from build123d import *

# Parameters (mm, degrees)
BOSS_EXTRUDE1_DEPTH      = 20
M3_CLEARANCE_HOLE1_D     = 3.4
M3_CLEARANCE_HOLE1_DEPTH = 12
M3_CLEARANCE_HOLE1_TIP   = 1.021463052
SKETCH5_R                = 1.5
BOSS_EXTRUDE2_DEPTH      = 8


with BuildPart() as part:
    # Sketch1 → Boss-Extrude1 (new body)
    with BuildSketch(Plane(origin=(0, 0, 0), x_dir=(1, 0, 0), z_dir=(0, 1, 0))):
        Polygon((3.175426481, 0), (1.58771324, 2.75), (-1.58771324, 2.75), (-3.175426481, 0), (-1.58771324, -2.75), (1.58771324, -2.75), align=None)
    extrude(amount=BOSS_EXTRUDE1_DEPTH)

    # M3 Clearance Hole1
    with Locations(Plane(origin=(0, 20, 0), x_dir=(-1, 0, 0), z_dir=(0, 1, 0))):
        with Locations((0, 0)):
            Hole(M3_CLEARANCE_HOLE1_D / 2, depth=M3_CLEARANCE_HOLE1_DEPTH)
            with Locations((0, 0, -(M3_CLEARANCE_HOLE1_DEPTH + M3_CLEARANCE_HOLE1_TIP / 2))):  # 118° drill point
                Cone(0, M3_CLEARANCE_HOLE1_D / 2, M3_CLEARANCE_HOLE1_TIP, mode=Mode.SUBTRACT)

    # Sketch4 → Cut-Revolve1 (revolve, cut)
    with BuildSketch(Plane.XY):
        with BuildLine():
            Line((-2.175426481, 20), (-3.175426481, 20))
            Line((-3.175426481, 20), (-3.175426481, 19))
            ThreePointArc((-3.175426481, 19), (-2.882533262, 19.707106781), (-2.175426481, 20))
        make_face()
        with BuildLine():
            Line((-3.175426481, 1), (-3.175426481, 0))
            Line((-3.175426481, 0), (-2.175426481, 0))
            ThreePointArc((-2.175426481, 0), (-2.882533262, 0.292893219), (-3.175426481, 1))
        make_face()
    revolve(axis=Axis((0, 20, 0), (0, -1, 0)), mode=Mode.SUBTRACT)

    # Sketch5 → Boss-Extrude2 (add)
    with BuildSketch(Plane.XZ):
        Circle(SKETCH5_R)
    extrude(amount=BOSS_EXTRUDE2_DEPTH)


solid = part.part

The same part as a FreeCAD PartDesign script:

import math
import FreeCAD as App
import Part
import Sketcher
Q = App.Units.Quantity

doc = App.newDocument("Part")
body = doc.addObject("PartDesign::Body", "Body")

# Sketch on XZ plane
sketch1 = body.newObject("Sketcher::SketchObject", "Sketch")
sketch1.AttachmentSupport = (doc.getObject("XZ_Plane"), [""])
sketch1.MapMode = "FlatFace"
sketch1.addGeometry([
    Part.LineSegment(App.Vector(3.175426, 0, 0), App.Vector(1.587713, -2.75, 0)),  # 0
    Part.LineSegment(App.Vector(1.587713, -2.75, 0), App.Vector(-1.587713, -2.75, 0)),  # 1
    Part.LineSegment(App.Vector(-1.587713, -2.75, 0), App.Vector(-3.175426, 0, 0)),  # 2
    Part.LineSegment(App.Vector(-3.175426, 0, 0), App.Vector(-1.587713, 2.75, 0)),  # 3
    Part.LineSegment(App.Vector(-1.587713, 2.75, 0), App.Vector(1.587713, 2.75, 0)),  # 4
    Part.LineSegment(App.Vector(1.587713, 2.75, 0), App.Vector(3.175426, 0, 0)),  # 5
], False)
sketch1.addConstraint([
    Sketcher.Constraint("Coincident", 0, 2, 1, 1),
    Sketcher.Constraint("Coincident", 1, 2, 2, 1),
    Sketcher.Constraint("Coincident", 2, 2, 3, 1),
    Sketcher.Constraint("Coincident", 3, 2, 4, 1),
    Sketcher.Constraint("Coincident", 4, 2, 5, 1),
    Sketcher.Constraint("Coincident", 5, 2, 0, 1),
    Sketcher.Constraint("Horizontal", 1),
    Sketcher.Constraint("Horizontal", 4),
    Sketcher.Constraint("Symmetric", 0, 2, 3, 2, -1, 1),
    Sketcher.Constraint("Symmetric", 2, 2, 5, 2, -1, 1),
    Sketcher.Constraint("PointOnObject", 2, 2, -1),
    Sketcher.Constraint("Parallel", 2, 5),
    Sketcher.Constraint("Vertical", 1, 2, 3, 2),
    Sketcher.Constraint("Angle", 0, Q("-120 deg")),
    Sketcher.Constraint("DistanceY", 1, 2, 3, 2, Q("5.5 mm")),
    Sketcher.Constraint("DistanceX", 1, 2, 1, 1, Q("3.175426 mm")),
])
pad1 = body.newObject("PartDesign::Pad", "Pad")
pad1.Profile = sketch1
pad1.Length = 20
pad1.Reversed = True

# Sketch on XZ plane
sketch2 = body.newObject("Sketcher::SketchObject", "Sketch001")
sketch2.AttachmentSupport = (doc.getObject("XZ_Plane"), [""])
sketch2.MapMode = "FlatFace"
sketch2.AttachmentOffset = App.Placement(App.Vector(0, 0, -20), App.Rotation())
sketch2.addGeometry(Part.Circle(App.Vector(0, 0, 0), App.Vector(0, 0, 1), 1.7), False)
sketch2.addConstraint([
    Sketcher.Constraint("Coincident", 0, 3, -1, 1),
    Sketcher.Constraint("Diameter", 0, Q("3.4 mm")),
])
doc.recompute()
hole = body.newObject("PartDesign::Hole", "Hole")
hole.Profile = sketch2
hole.ThreadType = "None"
hole.Diameter = 3.4
hole.DepthType = "Dimension"
hole.Depth = 12
hole.DrillPoint = "Angled"
hole.DrillPointAngle = 118
hole.Reversed = True

# Sketch on XY plane
sketch3 = body.newObject("Sketcher::SketchObject", "Sketch002")
sketch3.AttachmentSupport = (doc.getObject("XY_Plane"), [""])
sketch3.MapMode = "FlatFace"
sketch3.addGeometry([
    Part.LineSegment(App.Vector(-2.175426, 20, 0), App.Vector(-3.175426, 20, 0)),  # 0
    Part.LineSegment(App.Vector(-3.175426, 20, 0), App.Vector(-3.175426, 19, 0)),  # 1
    Part.ArcOfCircle(Part.Circle(App.Vector(-2.175426, 19, 0), App.Vector(0, 0, 1), 1), math.radians(90), math.radians(180)),  # 2
    Part.LineSegment(App.Vector(-3.175426, 1, 0), App.Vector(-3.175426, 0, 0)),  # 3
    Part.LineSegment(App.Vector(-3.175426, 0, 0), App.Vector(-2.175426, 0, 0)),  # 4
    Part.ArcOfCircle(Part.Circle(App.Vector(-2.175426, 1, 0), App.Vector(0, 0, 1), 1), math.radians(-180), math.radians(-90)),  # 5
], False)
sketch3.addConstraint([
    Sketcher.Constraint("Coincident", 0, 2, 1, 1),
    Sketcher.Constraint("Tangent", 1, 2, 2, 2),
    Sketcher.Constraint("Tangent", 2, 1, 0, 1),
    Sketcher.Constraint("Coincident", 3, 2, 4, 1),
    Sketcher.Constraint("Tangent", 4, 2, 5, 2),
    Sketcher.Constraint("Tangent", 5, 1, 3, 1),
    Sketcher.Constraint("Horizontal", 0),
    Sketcher.Constraint("Vertical", 1),
    Sketcher.Constraint("Vertical", 3),
    Sketcher.Constraint("Horizontal", 4),
    Sketcher.Constraint("Equal", 2, 5),
    Sketcher.Constraint("PointOnObject", 3, 2, -1),
    Sketcher.Constraint("Vertical", 2, 3, 5, 3),
    Sketcher.Constraint("Radius", 2, Q("1 mm")),
    Sketcher.Constraint("DistanceY", -1, 1, 2, 3, Q("19 mm")),
    Sketcher.Constraint("DistanceX", 2, 3, -1, 1, Q("2.175426 mm")),
])
groove = body.newObject("PartDesign::Groove", "Groove")
groove.Profile = sketch3
groove.ReferenceAxis = (sketch3, ["V_Axis"])
groove.Angle = 360

# Sketch on XZ plane
sketch4 = body.newObject("Sketcher::SketchObject", "Sketch003")
sketch4.AttachmentSupport = (doc.getObject("XZ_Plane"), [""])
sketch4.MapMode = "FlatFace"
sketch4.addGeometry(Part.Circle(App.Vector(0, 0, 0), App.Vector(0, 0, 1), 1.5), False)
sketch4.addConstraint([
    Sketcher.Constraint("Coincident", 0, 3, -1, 1),
    Sketcher.Constraint("Diameter", 0, Q("3 mm")),
])
pad2 = body.newObject("PartDesign::Pad", "Pad001")
pad2.Profile = sketch4
pad2.Length = 8

doc.recompute()
